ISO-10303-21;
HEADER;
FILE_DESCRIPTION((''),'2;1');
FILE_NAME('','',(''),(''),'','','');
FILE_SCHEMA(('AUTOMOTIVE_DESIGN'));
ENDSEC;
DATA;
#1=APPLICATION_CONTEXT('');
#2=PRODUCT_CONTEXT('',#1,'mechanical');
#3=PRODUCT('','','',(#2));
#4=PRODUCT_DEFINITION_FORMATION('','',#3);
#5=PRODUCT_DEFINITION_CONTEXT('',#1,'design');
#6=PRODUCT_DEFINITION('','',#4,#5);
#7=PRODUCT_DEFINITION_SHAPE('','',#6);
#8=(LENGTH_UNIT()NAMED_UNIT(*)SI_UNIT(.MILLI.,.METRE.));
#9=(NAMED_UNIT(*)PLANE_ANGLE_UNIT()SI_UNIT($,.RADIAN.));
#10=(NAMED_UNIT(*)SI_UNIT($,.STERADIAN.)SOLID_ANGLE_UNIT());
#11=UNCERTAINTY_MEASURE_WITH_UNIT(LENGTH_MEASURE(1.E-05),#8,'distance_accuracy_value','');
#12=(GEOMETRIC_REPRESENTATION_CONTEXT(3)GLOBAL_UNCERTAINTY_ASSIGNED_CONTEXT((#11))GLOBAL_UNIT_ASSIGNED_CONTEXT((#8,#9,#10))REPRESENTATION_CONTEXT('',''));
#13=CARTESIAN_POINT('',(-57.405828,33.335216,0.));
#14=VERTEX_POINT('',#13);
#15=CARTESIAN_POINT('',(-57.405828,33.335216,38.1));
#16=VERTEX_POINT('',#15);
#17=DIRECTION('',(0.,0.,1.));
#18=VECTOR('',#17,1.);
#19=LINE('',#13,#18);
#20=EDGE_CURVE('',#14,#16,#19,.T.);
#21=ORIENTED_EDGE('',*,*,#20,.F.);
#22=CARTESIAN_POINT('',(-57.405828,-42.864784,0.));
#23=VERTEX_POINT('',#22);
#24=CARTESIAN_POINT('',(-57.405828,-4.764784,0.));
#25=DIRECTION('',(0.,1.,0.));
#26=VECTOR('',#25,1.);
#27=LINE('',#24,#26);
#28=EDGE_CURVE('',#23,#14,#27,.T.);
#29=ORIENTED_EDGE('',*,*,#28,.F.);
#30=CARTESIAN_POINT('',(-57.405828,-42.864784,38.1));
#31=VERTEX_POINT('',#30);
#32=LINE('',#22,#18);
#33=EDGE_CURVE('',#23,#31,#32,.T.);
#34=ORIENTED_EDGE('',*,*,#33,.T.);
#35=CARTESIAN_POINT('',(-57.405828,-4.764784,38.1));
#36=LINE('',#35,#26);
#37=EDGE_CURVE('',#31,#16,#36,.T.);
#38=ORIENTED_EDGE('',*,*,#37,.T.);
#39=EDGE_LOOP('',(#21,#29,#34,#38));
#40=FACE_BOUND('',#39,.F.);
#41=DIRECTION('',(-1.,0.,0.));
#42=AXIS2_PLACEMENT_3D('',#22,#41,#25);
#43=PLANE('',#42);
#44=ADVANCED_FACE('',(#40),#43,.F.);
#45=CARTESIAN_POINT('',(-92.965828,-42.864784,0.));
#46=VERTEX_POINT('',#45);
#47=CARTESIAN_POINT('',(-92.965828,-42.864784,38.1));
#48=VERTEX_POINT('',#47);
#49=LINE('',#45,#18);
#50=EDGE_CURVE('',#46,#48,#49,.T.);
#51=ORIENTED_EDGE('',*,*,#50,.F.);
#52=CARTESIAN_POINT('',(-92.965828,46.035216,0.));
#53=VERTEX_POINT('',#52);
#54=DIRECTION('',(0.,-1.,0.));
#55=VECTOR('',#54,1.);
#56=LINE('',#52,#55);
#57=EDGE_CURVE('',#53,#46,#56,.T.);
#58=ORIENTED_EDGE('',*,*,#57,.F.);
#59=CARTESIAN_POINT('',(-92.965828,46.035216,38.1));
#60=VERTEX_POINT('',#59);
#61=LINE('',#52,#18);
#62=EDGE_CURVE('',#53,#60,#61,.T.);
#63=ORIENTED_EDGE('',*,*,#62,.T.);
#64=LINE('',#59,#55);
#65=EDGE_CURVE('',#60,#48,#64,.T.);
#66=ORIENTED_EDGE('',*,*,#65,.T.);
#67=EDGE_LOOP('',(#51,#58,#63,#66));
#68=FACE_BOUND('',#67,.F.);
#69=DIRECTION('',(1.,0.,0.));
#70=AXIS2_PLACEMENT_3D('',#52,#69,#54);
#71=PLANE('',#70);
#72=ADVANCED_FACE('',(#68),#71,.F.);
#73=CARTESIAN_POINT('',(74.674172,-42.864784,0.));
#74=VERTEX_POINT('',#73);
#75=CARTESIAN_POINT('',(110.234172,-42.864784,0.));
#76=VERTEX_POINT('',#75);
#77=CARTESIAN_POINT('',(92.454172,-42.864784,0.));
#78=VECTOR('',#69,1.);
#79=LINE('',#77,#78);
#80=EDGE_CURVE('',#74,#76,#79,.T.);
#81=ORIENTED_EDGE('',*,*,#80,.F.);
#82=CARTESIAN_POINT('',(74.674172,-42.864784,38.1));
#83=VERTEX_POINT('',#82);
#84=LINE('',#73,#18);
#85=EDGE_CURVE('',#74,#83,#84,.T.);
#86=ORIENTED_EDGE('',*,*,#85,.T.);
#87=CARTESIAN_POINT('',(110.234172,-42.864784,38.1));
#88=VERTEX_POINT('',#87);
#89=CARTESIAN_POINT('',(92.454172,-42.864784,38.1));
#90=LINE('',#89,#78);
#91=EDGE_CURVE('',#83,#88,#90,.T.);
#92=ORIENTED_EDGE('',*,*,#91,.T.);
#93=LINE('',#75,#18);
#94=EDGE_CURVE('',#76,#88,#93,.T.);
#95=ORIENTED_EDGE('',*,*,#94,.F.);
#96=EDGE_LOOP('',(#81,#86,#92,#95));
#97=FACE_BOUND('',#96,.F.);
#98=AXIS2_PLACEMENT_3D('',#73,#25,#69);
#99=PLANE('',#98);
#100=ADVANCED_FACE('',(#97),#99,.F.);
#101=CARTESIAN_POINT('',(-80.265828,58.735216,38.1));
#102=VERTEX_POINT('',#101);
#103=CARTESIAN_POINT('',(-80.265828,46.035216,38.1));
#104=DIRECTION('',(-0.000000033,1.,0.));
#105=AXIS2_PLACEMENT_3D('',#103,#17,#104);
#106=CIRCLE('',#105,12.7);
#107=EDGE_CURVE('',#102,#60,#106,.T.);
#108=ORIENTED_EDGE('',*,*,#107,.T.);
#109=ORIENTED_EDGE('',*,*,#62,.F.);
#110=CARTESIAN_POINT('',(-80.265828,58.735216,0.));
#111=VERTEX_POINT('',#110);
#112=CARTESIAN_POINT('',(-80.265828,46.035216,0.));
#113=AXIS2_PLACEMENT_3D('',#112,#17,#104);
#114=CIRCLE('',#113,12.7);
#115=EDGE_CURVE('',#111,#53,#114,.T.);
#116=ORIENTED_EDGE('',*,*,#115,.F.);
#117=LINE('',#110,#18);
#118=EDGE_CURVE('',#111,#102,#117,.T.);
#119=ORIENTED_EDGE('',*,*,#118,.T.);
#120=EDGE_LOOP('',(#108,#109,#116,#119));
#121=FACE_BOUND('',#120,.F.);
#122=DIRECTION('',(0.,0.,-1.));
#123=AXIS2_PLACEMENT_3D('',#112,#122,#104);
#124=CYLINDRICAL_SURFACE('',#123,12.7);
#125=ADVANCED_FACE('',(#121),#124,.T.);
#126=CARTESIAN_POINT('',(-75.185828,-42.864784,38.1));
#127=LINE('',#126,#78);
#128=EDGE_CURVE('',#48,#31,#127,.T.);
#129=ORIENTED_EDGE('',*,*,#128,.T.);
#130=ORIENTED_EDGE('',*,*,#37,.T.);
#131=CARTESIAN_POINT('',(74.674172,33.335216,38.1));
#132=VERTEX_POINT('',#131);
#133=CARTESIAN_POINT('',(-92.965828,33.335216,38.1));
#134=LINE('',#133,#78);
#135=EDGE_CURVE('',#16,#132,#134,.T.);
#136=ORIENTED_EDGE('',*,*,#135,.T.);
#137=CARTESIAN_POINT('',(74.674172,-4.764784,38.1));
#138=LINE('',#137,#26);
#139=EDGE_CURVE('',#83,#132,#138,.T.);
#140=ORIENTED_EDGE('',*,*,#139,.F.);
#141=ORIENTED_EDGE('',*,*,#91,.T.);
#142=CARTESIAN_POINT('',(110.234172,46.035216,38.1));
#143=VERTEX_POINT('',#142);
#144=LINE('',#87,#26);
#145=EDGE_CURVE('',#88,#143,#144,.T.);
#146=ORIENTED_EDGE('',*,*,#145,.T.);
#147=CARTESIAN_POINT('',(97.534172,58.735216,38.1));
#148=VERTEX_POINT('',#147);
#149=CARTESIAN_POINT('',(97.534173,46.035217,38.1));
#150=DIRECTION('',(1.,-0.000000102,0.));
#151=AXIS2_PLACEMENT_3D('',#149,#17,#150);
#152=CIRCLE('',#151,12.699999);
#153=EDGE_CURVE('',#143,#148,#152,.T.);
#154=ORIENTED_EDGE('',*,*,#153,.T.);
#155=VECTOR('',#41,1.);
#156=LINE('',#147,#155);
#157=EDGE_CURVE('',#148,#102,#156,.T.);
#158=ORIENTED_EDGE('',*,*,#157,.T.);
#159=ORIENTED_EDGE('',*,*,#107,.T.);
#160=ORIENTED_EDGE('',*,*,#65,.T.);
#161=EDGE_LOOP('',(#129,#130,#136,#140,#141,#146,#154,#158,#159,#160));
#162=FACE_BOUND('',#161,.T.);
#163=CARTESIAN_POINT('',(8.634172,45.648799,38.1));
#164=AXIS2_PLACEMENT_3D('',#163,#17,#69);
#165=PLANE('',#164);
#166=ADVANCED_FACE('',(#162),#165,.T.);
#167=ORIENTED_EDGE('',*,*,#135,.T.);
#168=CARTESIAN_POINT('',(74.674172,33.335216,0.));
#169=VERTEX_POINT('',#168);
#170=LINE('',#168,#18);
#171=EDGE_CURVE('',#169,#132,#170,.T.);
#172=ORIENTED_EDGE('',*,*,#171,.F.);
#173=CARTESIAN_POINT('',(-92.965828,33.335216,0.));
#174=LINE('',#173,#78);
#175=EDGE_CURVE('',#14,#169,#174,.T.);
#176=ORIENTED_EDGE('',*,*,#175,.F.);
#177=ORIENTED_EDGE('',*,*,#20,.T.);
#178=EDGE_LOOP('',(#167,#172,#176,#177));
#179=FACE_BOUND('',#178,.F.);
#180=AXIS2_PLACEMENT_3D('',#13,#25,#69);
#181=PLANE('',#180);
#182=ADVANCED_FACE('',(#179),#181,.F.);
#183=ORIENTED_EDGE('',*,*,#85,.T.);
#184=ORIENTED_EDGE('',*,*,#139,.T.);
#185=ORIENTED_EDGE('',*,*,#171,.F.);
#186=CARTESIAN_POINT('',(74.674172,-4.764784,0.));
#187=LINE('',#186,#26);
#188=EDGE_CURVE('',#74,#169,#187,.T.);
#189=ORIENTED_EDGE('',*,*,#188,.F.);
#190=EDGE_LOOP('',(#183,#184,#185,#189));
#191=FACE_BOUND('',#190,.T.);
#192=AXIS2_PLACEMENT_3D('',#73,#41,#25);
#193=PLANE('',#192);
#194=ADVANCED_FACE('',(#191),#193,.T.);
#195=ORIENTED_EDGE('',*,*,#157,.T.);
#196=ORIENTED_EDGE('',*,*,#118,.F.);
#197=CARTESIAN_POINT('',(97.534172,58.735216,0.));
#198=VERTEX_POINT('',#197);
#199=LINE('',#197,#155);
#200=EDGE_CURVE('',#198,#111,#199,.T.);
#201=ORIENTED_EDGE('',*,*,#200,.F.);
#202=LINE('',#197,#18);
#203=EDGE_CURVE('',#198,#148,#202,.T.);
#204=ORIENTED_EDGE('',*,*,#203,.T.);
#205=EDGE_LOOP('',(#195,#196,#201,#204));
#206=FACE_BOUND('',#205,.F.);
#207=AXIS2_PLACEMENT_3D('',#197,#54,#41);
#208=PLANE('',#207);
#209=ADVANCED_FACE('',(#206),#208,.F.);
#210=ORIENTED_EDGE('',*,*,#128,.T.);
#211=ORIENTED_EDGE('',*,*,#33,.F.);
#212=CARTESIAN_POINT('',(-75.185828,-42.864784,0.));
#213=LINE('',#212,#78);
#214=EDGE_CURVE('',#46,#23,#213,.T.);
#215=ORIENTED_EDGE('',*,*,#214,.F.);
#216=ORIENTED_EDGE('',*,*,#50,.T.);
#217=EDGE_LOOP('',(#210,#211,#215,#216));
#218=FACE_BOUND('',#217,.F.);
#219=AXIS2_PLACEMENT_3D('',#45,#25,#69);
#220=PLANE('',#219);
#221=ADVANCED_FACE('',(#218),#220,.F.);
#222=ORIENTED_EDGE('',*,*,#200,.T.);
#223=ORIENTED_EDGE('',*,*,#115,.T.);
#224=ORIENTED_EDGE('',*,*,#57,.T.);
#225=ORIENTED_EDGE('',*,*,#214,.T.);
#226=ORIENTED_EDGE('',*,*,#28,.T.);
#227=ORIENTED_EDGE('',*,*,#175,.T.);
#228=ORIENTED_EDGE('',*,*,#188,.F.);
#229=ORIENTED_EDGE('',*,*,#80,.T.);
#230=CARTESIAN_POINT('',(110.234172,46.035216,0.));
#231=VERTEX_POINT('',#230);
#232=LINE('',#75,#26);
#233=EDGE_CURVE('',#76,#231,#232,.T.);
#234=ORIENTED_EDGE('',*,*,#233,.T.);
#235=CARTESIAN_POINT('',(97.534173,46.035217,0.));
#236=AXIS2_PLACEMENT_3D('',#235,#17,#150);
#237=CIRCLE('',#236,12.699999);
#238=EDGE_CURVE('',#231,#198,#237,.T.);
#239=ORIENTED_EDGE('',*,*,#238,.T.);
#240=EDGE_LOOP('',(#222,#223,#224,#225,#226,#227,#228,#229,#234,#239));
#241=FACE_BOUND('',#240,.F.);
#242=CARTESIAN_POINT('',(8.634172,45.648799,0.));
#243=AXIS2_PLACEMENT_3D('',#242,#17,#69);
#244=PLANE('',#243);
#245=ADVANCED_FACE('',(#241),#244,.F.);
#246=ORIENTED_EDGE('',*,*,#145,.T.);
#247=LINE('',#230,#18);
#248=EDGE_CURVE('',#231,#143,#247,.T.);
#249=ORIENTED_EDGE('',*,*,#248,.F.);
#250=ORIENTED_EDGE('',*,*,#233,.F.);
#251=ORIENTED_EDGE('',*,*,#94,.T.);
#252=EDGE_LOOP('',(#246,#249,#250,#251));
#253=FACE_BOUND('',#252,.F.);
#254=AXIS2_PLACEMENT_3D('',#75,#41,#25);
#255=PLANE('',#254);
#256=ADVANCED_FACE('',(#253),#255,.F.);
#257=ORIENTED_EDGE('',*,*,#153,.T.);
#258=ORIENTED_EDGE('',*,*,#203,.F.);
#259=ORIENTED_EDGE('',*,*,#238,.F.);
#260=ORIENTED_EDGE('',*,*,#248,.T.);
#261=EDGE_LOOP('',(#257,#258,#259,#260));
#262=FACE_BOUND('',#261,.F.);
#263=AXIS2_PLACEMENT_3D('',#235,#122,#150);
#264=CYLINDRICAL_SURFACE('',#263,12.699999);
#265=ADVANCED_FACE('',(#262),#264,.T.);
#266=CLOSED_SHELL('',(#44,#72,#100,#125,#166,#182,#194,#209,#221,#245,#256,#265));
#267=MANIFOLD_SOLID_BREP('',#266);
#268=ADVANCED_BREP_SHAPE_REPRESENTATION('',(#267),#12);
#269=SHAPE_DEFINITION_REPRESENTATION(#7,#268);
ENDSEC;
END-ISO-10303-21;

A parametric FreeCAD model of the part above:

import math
import FreeCAD as App
import Part
import Sketcher
Q = App.Units.Quantity

doc = App.newDocument("Part")
body = doc.addObject("PartDesign::Body", "Body")

sketch1 = doc.addObject("Sketcher::SketchObject", "Sketch")
body.addObject(sketch1)
sketch1.AttachmentSupport = (doc.XY_Plane, [""])
sketch1.MapMode = "FlatFace"
sketch1.addGeometry([
    Part.LineSegment(App.Vector(97.534172, 58.735216, 0), App.Vector(-80.265828, 58.735216, 0)),
    Part.ArcOfCircle(Part.Circle(App.Vector(-80.265828, 46.035216, 0), App.Vector(0, 0, 1), 12.7), math.radians(90.000002), math.radians(179.999998)),
    Part.LineSegment(App.Vector(-92.965828, 46.035216, 0), App.Vector(-92.965828, -42.864784, 0)),
    Part.LineSegment(App.Vector(-92.965828, -42.864784, 0), App.Vector(-57.405828, -42.864784, 0)),
    Part.LineSegment(App.Vector(-57.405828, -42.864784, 0), App.Vector(-57.405828, 33.335216, 0)),
    Part.LineSegment(App.Vector(-57.405828, 33.335216, 0), App.Vector(74.674172, 33.335216, 0)),
    Part.LineSegment(App.Vector(74.674172, 33.335216, 0), App.Vector(74.674172, -42.864784, 0)),
    Part.LineSegment(App.Vector(74.674172, -42.864784, 0), App.Vector(110.234172, -42.864784, 0)),
    Part.LineSegment(App.Vector(110.234172, -42.864784, 0), App.Vector(110.234172, 46.035216, 0)),
    Part.ArcOfCircle(Part.Circle(App.Vector(97.534173, 46.035217, 0), App.Vector(0, 0, 1), 12.699999), math.radians(-0.000006), math.radians(90.000006)),
], False)
sketch1.addConstraint([
    Sketcher.Constraint("Tangent", 0, 2, 1, 1),
    Sketcher.Constraint("Tangent", 1, 2, 2, 1),
    Sketcher.Constraint("Coincident", 2, 2, 3, 1),
    Sketcher.Constraint("Coincident", 3, 2, 4, 1),
    Sketcher.Constraint("Coincident", 4, 2, 5, 1),
    Sketcher.Constraint("Coincident", 5, 2, 6, 1),
    Sketcher.Constraint("Coincident", 6, 2, 7, 1),
    Sketcher.Constraint("Coincident", 7, 2, 8, 1),
    Sketcher.Constraint("Tangent", 8, 2, 9, 1),
    Sketcher.Constraint("Tangent", 9, 2, 0, 1),
    Sketcher.Constraint("Horizontal", 0),
    Sketcher.Constraint("Vertical", 2),
    Sketcher.Constraint("Horizontal", 3),
    Sketcher.Constraint("Vertical", 4),
    Sketcher.Constraint("Horizontal", 5),
    Sketcher.Constraint("Vertical", 6),
    Sketcher.Constraint("Horizontal", 7),
    Sketcher.Constraint("Vertical", 8),
    Sketcher.Constraint("Equal", 1, 9),
    Sketcher.Constraint("Horizontal", 3, 2, 6, 2),
    Sketcher.Constraint("Equal", 3, 7),
    Sketcher.Constraint("Radius", 1, Q("0.5 in")),
    Sketcher.Constraint("DistanceX", 0, 2, 0, 1, Q("7 in")),
    Sketcher.Constraint("DistanceY", 4, 1, 4, 2, Q("3 in")),
    Sketcher.Constraint("DistanceX", 3, 1, 3, 2, Q("1.4 in")),
    Sketcher.Constraint("DistanceY", 2, 2, 2, 1, Q("3.5 in")),
    Sketcher.Constraint("DistanceX", 0, 2, -1, 1, Q("80.265828 mm")),
    Sketcher.Constraint("DistanceY", -1, 1, 1, 3, Q("46.035216 mm")),
])
pad1 = doc.addObject("PartDesign::Pad", "Pad")
body.addObject(pad1)
pad1.Profile = sketch1
pad1.Length = Q("1.5 in")

doc.recompute()
